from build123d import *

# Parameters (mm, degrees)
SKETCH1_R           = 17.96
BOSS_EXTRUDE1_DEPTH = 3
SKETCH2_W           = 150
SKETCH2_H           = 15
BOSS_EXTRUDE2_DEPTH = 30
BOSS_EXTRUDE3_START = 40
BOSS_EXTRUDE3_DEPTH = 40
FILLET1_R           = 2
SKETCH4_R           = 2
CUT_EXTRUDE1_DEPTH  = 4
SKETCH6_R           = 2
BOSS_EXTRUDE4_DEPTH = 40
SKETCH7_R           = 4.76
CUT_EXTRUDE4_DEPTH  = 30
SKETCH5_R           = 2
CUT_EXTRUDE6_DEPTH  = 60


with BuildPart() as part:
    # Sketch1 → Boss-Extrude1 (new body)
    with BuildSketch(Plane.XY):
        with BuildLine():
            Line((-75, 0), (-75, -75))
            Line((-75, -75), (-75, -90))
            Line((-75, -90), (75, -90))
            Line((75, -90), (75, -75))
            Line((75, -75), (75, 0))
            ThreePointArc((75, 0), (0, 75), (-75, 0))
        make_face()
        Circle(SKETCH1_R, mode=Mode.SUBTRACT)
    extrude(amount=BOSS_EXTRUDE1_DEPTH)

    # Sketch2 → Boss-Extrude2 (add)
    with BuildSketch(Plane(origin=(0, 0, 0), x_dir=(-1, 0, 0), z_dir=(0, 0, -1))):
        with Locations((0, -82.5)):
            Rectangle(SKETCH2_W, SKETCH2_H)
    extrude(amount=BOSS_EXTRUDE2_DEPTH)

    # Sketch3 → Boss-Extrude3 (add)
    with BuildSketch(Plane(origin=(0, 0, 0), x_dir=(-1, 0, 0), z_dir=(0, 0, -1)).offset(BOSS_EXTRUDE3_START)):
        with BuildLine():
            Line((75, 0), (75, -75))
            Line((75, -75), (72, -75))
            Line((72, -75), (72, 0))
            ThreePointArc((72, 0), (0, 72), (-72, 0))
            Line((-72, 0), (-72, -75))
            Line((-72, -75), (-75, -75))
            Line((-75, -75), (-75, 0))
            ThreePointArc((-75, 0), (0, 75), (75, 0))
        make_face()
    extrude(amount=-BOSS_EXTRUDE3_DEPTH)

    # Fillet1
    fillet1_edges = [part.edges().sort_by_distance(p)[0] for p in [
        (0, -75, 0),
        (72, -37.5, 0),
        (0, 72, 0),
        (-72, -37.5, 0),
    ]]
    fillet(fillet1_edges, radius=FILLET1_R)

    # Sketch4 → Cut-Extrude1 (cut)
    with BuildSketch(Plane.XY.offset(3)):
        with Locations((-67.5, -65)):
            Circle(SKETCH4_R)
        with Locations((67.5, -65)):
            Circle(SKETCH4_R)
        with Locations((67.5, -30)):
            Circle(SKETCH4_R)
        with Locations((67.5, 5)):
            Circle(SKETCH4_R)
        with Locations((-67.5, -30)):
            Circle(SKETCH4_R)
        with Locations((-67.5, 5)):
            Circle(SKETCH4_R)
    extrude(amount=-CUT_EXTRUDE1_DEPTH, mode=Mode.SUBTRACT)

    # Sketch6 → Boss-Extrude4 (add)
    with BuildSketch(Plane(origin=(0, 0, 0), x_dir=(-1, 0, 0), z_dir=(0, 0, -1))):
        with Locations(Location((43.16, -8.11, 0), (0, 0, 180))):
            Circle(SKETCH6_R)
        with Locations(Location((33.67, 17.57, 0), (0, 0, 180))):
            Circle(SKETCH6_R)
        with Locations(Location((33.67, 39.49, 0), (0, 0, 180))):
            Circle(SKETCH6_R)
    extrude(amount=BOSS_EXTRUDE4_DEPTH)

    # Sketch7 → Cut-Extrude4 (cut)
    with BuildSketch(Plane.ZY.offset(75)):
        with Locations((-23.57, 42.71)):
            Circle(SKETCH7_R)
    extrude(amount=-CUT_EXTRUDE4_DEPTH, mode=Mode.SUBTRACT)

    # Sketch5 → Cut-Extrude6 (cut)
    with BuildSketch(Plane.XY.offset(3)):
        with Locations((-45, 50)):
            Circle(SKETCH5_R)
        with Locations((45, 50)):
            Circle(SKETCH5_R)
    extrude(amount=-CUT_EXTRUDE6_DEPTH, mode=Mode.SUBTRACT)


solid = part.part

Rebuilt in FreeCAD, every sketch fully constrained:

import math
import FreeCAD as App
import Part
import Sketcher

V = App.Vector
Q = App.Units.Quantity


def edges_at(feature, points):
    """Names of the edges that pass closest to the given points."""
    edges = feature.Shape.Edges
    near = lambda p: min(range(len(edges)), key=lambda i: edges[i].distToShape(Part.Vertex(*p))[0])
    return sorted({f"Edge{near(p) + 1}" for p in points})

doc = App.newDocument("Part")
params = doc.addObject("Spreadsheet::Sheet", "Params")
for row, (alias, value) in enumerate([
    ("sketch1_radius", "75 mm"),
    ("sketch1_diameter", "35.92 mm"),
    ("sketch1_height", "90 mm"),
    ("pad1_length", "3 mm"),
    ("sketch2_width", "150 mm"),
    ("sketch2_height", "15 mm"),
    ("pad2_length", "30 mm"),
    ("sketch3_radius", "75 mm"),
    ("sketch3_radius2", "72 mm"),
    ("sketch3_height", "75 mm"),
    ("pad3_length", "40 mm"),
    ("fillet_radius", "2 mm"),
    ("sketch4_diameter", "4 mm"),
    ("pocket1_length", "4 mm"),
    ("sketch5_diameter", "4 mm"),
    ("pad4_length", "40 mm"),
    ("sketch6_diameter", "9.52 mm"),
    ("pocket2_length", "30 mm"),
    ("sketch7_diameter", "4 mm"),
    ("pocket3_length", "60 mm"),
], start=1):
    params.set(f"A{row}", alias)
    params.set(f"B{row}", "=" + value)
    params.setAlias(f"B{row}", alias)

body = doc.addObject("PartDesign::Body", "Body")

# Sketch on XY plane
sketch1 = doc.addObject("Sketcher::SketchObject", "Sketch")
body.addObject(sketch1)
sketch1.AttachmentSupport = (doc.XY_Plane, [""])
sketch1.MapMode = "FlatFace"
sketch1.addGeometry([
    Part.LineSegment(V(-75, 0, 0), V(-75, -90, 0)),  # 0
    Part.LineSegment(V(-75, -90, 0), V(75, -90, 0)),  # 1
    Part.LineSegment(V(75, -90, 0), V(75, 0, 0)),  # 2
    Part.ArcOfCircle(Part.Circle(V(0, 0, 0), V(0, 0, 1), 75), math.radians(0), math.radians(180)),  # 3
    Part.Circle(V(0, 0, 0), V(0, 0, 1), 18),  # 4
], False)
sketch1.addConstraint([
    Sketcher.Constraint("Coincident", 0, 2, 1, 1),
    Sketcher.Constraint("Coincident", 1, 2, 2, 1),
    Sketcher.Constraint("Tangent", 2, 2, 3, 1),
    Sketcher.Constraint("Tangent", 3, 2, 0, 1),
    Sketcher.Constraint("Vertical", 0),
    Sketcher.Constraint("Horizontal", 1),
    Sketcher.Constraint("Vertical", 2),
    Sketcher.Constraint("Coincident", 3, 3, -1, 1),
    Sketcher.Constraint("Coincident", 4, 3, -1, 1),
    Sketcher.Constraint("Radius", 3, Q("75 mm")),
    Sketcher.Constraint("Diameter", 4, Q("35.92 mm")),
    Sketcher.Constraint("DistanceY", 0, 2, 0, 1, Q("90 mm")),
])
sketch1.setExpression("Constraints[9]", "Params.sketch1_radius")
sketch1.setExpression("Constraints[10]", "Params.sketch1_diameter")
sketch1.setExpression("Constraints[11]", "Params.sketch1_height")
pad1 = doc.addObject("PartDesign::Pad", "Pad")
body.addObject(pad1)
pad1.Profile = sketch1
pad1.setExpression("Length", "Params.pad1_length")

# Sketch on XY plane
sketch2 = doc.addObject("Sketcher::SketchObject", "Sketch001")
body.addObject(sketch2)
sketch2.AttachmentSupport = (doc.XY_Plane, [""])
sketch2.MapMode = "FlatFace"
sketch2.addGeometry([
    Part.LineSegment(V(75, -75, 0), V(75, -90, 0)),
    Part.LineSegment(V(75, -90, 0), V(-75, -90, 0)),
    Part.LineSegment(V(-75, -90, 0), V(-75, -75, 0)),
    Part.LineSegment(V(-75, -75, 0), V(75, -75, 0)),
], False)
sketch2.addConstraint([
    Sketcher.Constraint("Coincident", 0, 2, 1, 1),
    Sketcher.Constraint("Coincident", 1, 2, 2, 1),
    Sketcher.Constraint("Coincident", 2, 2, 3, 1),
    Sketcher.Constraint("Coincident", 3, 2, 0, 1),
    Sketcher.Constraint("Vertical", 0),
    Sketcher.Constraint("Horizontal", 1),
    Sketcher.Constraint("Vertical", 2),
    Sketcher.Constraint("Horizontal", 3),
    Sketcher.Constraint("DistanceX", 1, 2, 1, 1, Q("150 mm")),
    Sketcher.Constraint("DistanceY", 0, 2, 0, 1, Q("15 mm")),
    Sketcher.Constraint("DistanceX", -1, 1, 0, 2, Q("75 mm")),
    Sketcher.Constraint("DistanceY", 0, 2, -1, 1, Q("90 mm")),
])
sketch2.setExpression("Constraints[8]", "Params.sketch2_width")
sketch2.setExpression("Constraints[9]", "Params.sketch2_height")
pad2 = doc.addObject("PartDesign::Pad", "Pad001")
body.addObject(pad2)
pad2.Profile = sketch2
pad2.setExpression("Length", "Params.pad2_length")
pad2.Reversed = True

# Sketch on XY plane
sketch3 = doc.addObject("Sketcher::SketchObject", "Sketch002")
body.addObject(sketch3)
sketch3.AttachmentSupport = (doc.XY_Plane, [""])
sketch3.MapMode = "FlatFace"
sketch3.AttachmentOffset = App.Placement(V(0, 0, -40), App.Rotation())
sketch3.addGeometry([
    Part.LineSegment(V(-75, -75, 0), V(-75, 0, 0)),  # 0
    Part.ArcOfCircle(Part.Circle(V(0, 0, 0), V(0, 0, 1), 75), math.radians(0), math.radians(180)),  # 1
    Part.LineSegment(V(75, 0, 0), V(75, -75, 0)),  # 2
    Part.LineSegment(V(75, -75, 0), V(72, -75, 0)),  # 3
    Part.LineSegment(V(72, -75, 0), V(72, 0, 0)),  # 4
    Part.ArcOfCircle(Part.Circle(V(0, 0, 0), V(0, 0, 1), 72), math.radians(0), math.radians(180)),  # 5
    Part.LineSegment(V(-72, 0, 0), V(-72, -75, 0)),  # 6
    Part.LineSegment(V(-72, -75, 0), V(-75, -75, 0)),  # 7
], False)
sketch3.addConstraint([
    Sketcher.Constraint("Tangent", 0, 2, 1, 2),
    Sketcher.Constraint("Tangent", 1, 1, 2, 1),
    Sketcher.Constraint("Coincident", 2, 2, 3, 1),
    Sketcher.Constraint("Coincident", 3, 2, 4, 1),
    Sketcher.Constraint("Tangent", 4, 2, 5, 1),
    Sketcher.Constraint("Tangent", 5, 2, 6, 1),
    Sketcher.Constraint("Coincident", 6, 2, 7, 1),
    Sketcher.Constraint("Coincident", 7, 2, 0, 1),
    Sketcher.Constraint("Vertical", 0),
    Sketcher.Constraint("Vertical", 2),
    Sketcher.Constraint("Horizontal", 3),
    Sketcher.Constraint("Vertical", 4),
    Sketcher.Constraint("Vertical", 6),
    Sketcher.Constraint("Horizontal", 7),
    Sketcher.Constraint("Coincident", 1, 3, -1, 1),
    Sketcher.Constraint("Coincident", 5, 3, -1, 1),
    Sketcher.Constraint("Horizontal", 3, 2, 6, 2),
    Sketcher.Constraint("Radius", 1, Q("75 mm")),
    Sketcher.Constraint("Radius", 5, Q("72 mm")),
    Sketcher.Constraint("DistanceY", 0, 1, 0, 2, Q("75 mm")),
])
sketch3.setExpression("Constraints[17]", "Params.sketch3_radius")
sketch3.setExpression("Constraints[18]", "Params.sketch3_radius2")
sketch3.setExpression("Constraints[19]", "Params.sketch3_height")
pad3 = doc.addObject("PartDesign::Pad", "Pad002")
body.addObject(pad3)
pad3.Profile = sketch3
pad3.setExpression("Length", "Params.pad3_length")
doc.recompute()

fillet = doc.addObject("PartDesign::Fillet", "Fillet")
body.addObject(fillet)
fillet.Base = (pad3, edges_at(pad3, [
    (0, -75, 0),
    (72, -37.5, 0),
    (0, 72, 0),
    (-72, -37.5, 0),
]))
fillet.setExpression("Radius", "Params.fillet_radius")

# Sketch on XY plane
sketch4 = doc.addObject("Sketcher::SketchObject", "Sketch003")
body.addObject(sketch4)
sketch4.AttachmentSupport = (doc.XY_Plane, [""])
sketch4.MapMode = "FlatFace"
sketch4.AttachmentOffset = App.Placement(V(0, 0, 3), App.Rotation())
sketch4.addGeometry([
    Part.Circle(V(-67.5, -65, 0), V(0, 0, 1), 2),  # 0
    Part.Circle(V(67.5, -65, 0), V(0, 0, 1), 2),  # 1
    Part.Circle(V(67.5, -30, 0), V(0, 0, 1), 2),  # 2
    Part.Circle(V(67.5, 5, 0), V(0, 0, 1), 2),  # 3
    Part.Circle(V(-67.5, -30, 0), V(0, 0, 1), 2),  # 4
    Part.Circle(V(-67.5, 5, 0), V(0, 0, 1), 2),  # 5
], False)
sketch4.addConstraint([
    Sketcher.Constraint("Equal", 0, 1),
    Sketcher.Constraint("Equal", 1, 2),
    Sketcher.Constraint("Equal", 2, 3),
    Sketcher.Constraint("Equal", 3, 4),
    Sketcher.Constraint("Equal", 4, 5),
    Sketcher.Constraint("Symmetric", 0, 3, 1, 3, -2),
    Sketcher.Constraint("Symmetric", 2, 3, 4, 3, -2),
    Sketcher.Constraint("Symmetric", 3, 3, 5, 3, -2),
    Sketcher.Constraint("Vertical", 1, 3, 2, 3),
    Sketcher.Constraint("Vertical", 2, 3, 3, 3),
    Sketcher.Constraint("Diameter", 0, Q("4 mm")),
    Sketcher.Constraint("DistanceY", 0, 3, -1, 1, Q("65 mm")),
    Sketcher.Constraint("DistanceY", 2, 3, -1, 1, Q("30 mm")),
    Sketcher.Constraint("DistanceY", -1, 1, 3, 3, Q("5 mm")),
    Sketcher.Constraint("DistanceX", 0, 3, 1, 3, Q("135 mm")),
])
sketch4.setExpression("Constraints[10]", "Params.sketch4_diameter")
pocket1 = doc.addObject("PartDesign::Pocket", "Pocket")
body.addObject(pocket1)
pocket1.Profile = sketch4
pocket1.setExpression("Length", "Params.pocket1_length")

# Sketch on XY plane
sketch5 = doc.addObject("Sketcher::SketchObject", "Sketch004")
body.addObject(sketch5)
sketch5.AttachmentSupport = (doc.XY_Plane, [""])
sketch5.MapMode = "FlatFace"
sketch5.addGeometry([
    Part.Circle(V(-43.2, -8.1, 0), V(0, 0, 1), 2),
    Part.Circle(V(-33.7, 17.6, 0), V(0, 0, 1), 2),
    Part.Circle(V(-33.7, 39.5, 0), V(0, 0, 1), 2),
], False)
sketch5.addConstraint([
    Sketcher.Constraint("Equal", 0, 1),
    Sketcher.Constraint("Equal", 1, 2),
    Sketcher.Constraint("Vertical", 1, 3, 2, 3),
    Sketcher.Constraint("Diameter", 0, Q("4 mm")),
    Sketcher.Constraint("DistanceY", 0, 3, 2, 3, Q("47.6 mm")),
    Sketcher.Constraint("DistanceX", 0, 3, -1, 1, Q("43.16 mm")),
    Sketcher.Constraint("DistanceY", 0, 3, -1, 1, Q("8.11 mm")),
    Sketcher.Constraint("DistanceX", 1, 3, -1, 1, Q("33.67 mm")),
    Sketcher.Constraint("DistanceY", -1, 1, 1, 3, Q("17.57 mm")),
])
sketch5.setExpression("Constraints[3]", "Params.sketch5_diameter")
pad4 = doc.addObject("PartDesign::Pad", "Pad003")
body.addObject(pad4)
pad4.Profile = sketch5
pad4.setExpression("Length", "Params.pad4_length")
pad4.Reversed = True

# Sketch on YZ plane
sketch6 = doc.addObject("Sketcher::SketchObject", "Sketch005")
body.addObject(sketch6)
sketch6.AttachmentSupport = (doc.YZ_Plane, [""])
sketch6.MapMode = "FlatFace"
sketch6.AttachmentOffset = App.Placement(V(0, 0, -75), App.Rotation())
sketch6.addGeometry(Part.Circle(V(42.7, -23.6, 0), V(0, 0, 1), 4.8), False)
sketch6.addConstraint([
    Sketcher.Constraint("Diameter", 0, Q("9.52 mm")),
    Sketcher.Constraint("DistanceX", -1, 1, 0, 3, Q("42.71 mm")),
    Sketcher.Constraint("DistanceY", 0, 3, -1, 1, Q("23.57 mm")),
])
sketch6.setExpression("Constraints[0]", "Params.sketch6_diameter")
pocket2 = doc.addObject("PartDesign::Pocket", "Pocket001")
body.addObject(pocket2)
pocket2.Profile = sketch6
pocket2.setExpression("Length", "Params.pocket2_length")
pocket2.Reversed = True

# Sketch on XY plane
sketch7 = doc.addObject("Sketcher::SketchObject", "Sketch006")
body.addObject(sketch7)
sketch7.AttachmentSupport = (doc.XY_Plane, [""])
sketch7.MapMode = "FlatFace"
sketch7.AttachmentOffset = App.Placement(V(0, 0, 3), App.Rotation())
sketch7.addGeometry([
    Part.Circle(V(-45, 50, 0), V(0, 0, 1), 2),
    Part.Circle(V(45, 50, 0), V(0, 0, 1), 2),
], False)
sketch7.addConstraint([
    Sketcher.Constraint("Equal", 0, 1),
    Sketcher.Constraint("Symmetric", 0, 3, 1, 3, -2),
    Sketcher.Constraint("Diameter", 0, Q("4 mm")),
    Sketcher.Constraint("DistanceX", 0, 3, -1, 1, Q("45 mm")),
    Sketcher.Constraint("DistanceY", -1, 1, 0, 3, Q("50 mm")),
])
sketch7.setExpression("Constraints[2]", "Params.sketch7_diameter")
pocket3 = doc.addObject("PartDesign::Pocket", "Pocket002")
body.addObject(pocket3)
pocket3.Profile = sketch7
pocket3.setExpression("Length", "Params.pocket3_length")

doc.recompute()
